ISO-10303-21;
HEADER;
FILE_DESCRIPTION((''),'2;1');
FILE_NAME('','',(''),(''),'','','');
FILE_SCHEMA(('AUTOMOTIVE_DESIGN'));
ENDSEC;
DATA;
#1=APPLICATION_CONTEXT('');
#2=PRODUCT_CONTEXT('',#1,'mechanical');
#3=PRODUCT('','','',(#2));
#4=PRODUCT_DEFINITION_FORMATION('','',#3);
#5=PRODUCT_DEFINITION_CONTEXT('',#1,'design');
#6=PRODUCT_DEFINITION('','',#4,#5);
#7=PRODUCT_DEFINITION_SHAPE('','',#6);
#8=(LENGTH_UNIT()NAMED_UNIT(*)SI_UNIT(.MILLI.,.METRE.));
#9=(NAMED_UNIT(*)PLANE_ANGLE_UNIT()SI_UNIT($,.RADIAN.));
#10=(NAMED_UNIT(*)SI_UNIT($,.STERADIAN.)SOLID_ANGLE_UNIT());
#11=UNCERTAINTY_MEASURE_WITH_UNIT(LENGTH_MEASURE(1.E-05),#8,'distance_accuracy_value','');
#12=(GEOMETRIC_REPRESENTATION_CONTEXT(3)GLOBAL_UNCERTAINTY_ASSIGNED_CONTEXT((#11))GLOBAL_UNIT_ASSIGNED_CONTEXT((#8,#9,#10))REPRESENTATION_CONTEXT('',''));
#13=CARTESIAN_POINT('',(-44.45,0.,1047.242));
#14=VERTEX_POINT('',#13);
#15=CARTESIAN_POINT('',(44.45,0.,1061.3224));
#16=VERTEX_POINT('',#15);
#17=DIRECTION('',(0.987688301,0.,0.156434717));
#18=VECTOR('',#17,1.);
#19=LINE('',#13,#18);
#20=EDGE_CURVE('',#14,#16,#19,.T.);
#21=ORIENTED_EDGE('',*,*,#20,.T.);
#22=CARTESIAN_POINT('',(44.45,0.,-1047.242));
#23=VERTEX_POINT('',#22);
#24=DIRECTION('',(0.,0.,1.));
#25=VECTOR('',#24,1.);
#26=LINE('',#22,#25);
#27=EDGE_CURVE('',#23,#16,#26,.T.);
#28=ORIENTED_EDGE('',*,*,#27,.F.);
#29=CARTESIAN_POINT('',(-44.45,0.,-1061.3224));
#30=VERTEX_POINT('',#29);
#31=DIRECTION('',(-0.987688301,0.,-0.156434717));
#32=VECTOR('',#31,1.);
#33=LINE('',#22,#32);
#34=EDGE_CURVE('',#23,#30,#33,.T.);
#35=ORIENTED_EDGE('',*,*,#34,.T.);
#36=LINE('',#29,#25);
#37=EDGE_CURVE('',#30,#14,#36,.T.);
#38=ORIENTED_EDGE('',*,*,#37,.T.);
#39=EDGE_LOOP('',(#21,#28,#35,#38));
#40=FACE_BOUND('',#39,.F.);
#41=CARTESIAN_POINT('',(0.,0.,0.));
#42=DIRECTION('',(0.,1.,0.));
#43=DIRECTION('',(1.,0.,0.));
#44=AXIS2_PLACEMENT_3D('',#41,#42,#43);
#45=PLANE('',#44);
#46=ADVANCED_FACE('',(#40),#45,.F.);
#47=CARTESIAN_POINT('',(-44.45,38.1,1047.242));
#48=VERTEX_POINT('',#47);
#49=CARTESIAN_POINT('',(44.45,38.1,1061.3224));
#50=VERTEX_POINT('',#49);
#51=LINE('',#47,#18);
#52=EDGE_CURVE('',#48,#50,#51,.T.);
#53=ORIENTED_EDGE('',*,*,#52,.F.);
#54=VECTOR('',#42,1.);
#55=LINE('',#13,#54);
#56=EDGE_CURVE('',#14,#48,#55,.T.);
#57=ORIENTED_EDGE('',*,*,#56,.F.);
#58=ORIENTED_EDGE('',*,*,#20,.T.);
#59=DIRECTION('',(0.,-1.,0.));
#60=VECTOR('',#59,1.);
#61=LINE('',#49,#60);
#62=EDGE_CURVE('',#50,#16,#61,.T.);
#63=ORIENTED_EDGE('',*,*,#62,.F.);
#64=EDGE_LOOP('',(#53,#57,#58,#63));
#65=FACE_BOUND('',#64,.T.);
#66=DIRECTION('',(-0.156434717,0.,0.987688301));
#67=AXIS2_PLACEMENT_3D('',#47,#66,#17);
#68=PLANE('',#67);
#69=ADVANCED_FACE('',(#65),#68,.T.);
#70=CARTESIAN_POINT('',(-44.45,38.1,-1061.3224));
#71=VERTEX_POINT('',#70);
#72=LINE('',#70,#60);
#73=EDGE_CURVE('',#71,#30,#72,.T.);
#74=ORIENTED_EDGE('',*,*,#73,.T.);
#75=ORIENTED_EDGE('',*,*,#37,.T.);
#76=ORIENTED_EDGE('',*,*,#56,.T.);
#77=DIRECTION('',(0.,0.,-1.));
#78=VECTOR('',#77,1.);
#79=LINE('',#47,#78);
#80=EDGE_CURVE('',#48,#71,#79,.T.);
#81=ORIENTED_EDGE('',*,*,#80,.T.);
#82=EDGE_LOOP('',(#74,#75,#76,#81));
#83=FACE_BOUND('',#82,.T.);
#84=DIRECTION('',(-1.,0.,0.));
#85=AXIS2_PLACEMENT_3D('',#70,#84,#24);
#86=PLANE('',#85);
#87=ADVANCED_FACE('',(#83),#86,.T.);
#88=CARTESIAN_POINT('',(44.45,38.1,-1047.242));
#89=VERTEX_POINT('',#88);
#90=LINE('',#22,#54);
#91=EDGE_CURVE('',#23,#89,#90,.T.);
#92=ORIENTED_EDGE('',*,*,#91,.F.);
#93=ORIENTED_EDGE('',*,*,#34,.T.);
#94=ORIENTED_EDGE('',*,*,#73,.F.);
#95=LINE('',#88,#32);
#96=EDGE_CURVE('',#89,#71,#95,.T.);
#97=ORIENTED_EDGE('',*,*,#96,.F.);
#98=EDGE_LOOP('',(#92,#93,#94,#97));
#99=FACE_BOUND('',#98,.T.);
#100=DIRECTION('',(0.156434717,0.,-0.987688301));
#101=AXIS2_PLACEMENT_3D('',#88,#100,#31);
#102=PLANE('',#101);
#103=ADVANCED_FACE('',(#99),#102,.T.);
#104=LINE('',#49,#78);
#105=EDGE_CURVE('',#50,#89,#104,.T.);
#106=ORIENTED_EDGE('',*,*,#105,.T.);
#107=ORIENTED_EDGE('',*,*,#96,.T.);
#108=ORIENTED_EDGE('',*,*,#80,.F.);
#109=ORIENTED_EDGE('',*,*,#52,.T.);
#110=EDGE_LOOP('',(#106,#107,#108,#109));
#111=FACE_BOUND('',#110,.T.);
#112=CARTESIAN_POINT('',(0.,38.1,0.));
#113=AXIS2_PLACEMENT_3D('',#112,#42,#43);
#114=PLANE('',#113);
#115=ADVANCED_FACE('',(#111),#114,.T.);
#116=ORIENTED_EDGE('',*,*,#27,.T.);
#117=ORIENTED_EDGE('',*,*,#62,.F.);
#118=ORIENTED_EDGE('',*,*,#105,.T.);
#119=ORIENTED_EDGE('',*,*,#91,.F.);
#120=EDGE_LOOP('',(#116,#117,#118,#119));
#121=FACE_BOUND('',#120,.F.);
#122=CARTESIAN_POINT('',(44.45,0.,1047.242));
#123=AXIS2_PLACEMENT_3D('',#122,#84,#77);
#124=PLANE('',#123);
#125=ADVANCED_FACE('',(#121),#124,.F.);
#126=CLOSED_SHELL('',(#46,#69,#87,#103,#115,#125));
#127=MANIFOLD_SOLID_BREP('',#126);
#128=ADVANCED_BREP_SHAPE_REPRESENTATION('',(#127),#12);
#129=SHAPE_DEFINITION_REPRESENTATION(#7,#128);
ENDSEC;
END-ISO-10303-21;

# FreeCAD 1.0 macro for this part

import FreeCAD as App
import Part
import Sketcher
Q = App.Units.Quantity

doc = App.newDocument("Part")
body = doc.addObject("PartDesign::Body", "Body")

# Sketch on XZ plane
sketch1 = body.newObject("Sketcher::SketchObject", "Sketch")
sketch1.AttachmentSupport = (doc.getObject("XZ_Plane"), [""])
sketch1.MapMode = "FlatFace"
sketch1.addGeometry([
    Part.LineSegment(App.Vector(-44, 1047, 0), App.Vector(44, 1047, 0)),
    Part.LineSegment(App.Vector(44, 1047, 0), App.Vector(44, -1047, 0)),
    Part.LineSegment(App.Vector(44, -1047, 0), App.Vector(-44, -1047, 0)),
    Part.LineSegment(App.Vector(-44, -1047, 0), App.Vector(-44, 1047, 0)),
], False)
sketch1.addConstraint([
    Sketcher.Constraint("Coincident", 0, 2, 1, 1),
    Sketcher.Constraint("Coincident", 1, 2, 2, 1),
    Sketcher.Constraint("Coincident", 2, 2, 3, 1),
    Sketcher.Constraint("Coincident", 3, 2, 0, 1),
    Sketcher.Constraint("Horizontal", 0),
    Sketcher.Constraint("Vertical", 1),
    Sketcher.Constraint("Horizontal", 2),
    Sketcher.Constraint("Vertical", 3),
    Sketcher.Constraint("Symmetric", 0, 2, 2, 2, -1, 1),
    Sketcher.Constraint("DistanceX", 0, 1, 0, 2, Q("3.5 in")),
    Sketcher.Constraint("DistanceY", 1, 2, 1, 1, Q("82.46 in")),
])
pad1 = body.newObject("PartDesign::Pad", "Pad")
pad1.Profile = sketch1
pad1.Length = Q("1.5 in")
pad1.Reversed = True

# Sketch on XZ plane
sketch2 = body.newObject("Sketcher::SketchObject", "Sketch001")
sketch2.AttachmentSupport = (doc.getObject("XZ_Plane"), [""])
sketch2.MapMode = "FlatFace"
sketch2.AttachmentOffset = App.Placement(App.Vector(0, 0, -1.5 * 25.4), App.Rotation())
sketch2.addGeometry([
    Part.LineSegment(App.Vector(44, 1047, 0), App.Vector(-44, 1047, 0)),
    Part.LineSegment(App.Vector(-44, 1047, 0), App.Vector(44, 1061, 0)),
    Part.LineSegment(App.Vector(44, 1061, 0), App.Vector(44, 1047, 0)),
], False)
sketch2.addConstraint([
    Sketcher.Constraint("Coincident", 0, 2, 1, 1),
    Sketcher.Constraint("Coincident", 1, 2, 2, 1),
    Sketcher.Constraint("Coincident", 2, 2, 0, 1),
    Sketcher.Constraint("Horizontal", 0),
    Sketcher.Constraint("Vertical", 2),
    Sketcher.Constraint("Angle", 1, Q("9 deg")),
    Sketcher.Constraint("DistanceX", 0, 2, 0, 1, Q("3.5 in")),
    Sketcher.Constraint("DistanceX", 0, 2, -1, 1, Q("1.75 in")),
    Sketcher.Constraint("DistanceY", -1, 1, 0, 2, Q("41.23 in")),
])
pad2 = body.newObject("PartDesign::Pad", "Pad001")
pad2.Profile = sketch2
pad2.Length = Q("1.5 in")

# Sketch on XZ plane
sketch3 = body.newObject("Sketcher::SketchObject", "Sketch002")
sketch3.AttachmentSupport = (doc.getObject("XZ_Plane"), [""])
sketch3.MapMode = "FlatFace"
sketch3.AttachmentOffset = App.Placement(App.Vector(0, 0, -1.5 * 25.4), App.Rotation())
sketch3.addGeometry([
    Part.LineSegment(App.Vector(-44, -1047, 0), App.Vector(44, -1047, 0)),
    Part.LineSegment(App.Vector(44, -1047, 0), App.Vector(-44, -1061, 0)),
    Part.LineSegment(App.Vector(-44, -1061, 0), App.Vector(-44, -1047, 0)),
], False)
sketch3.addConstraint([
    Sketcher.Constraint("Coincident", 0, 2, 1, 1),
    Sketcher.Constraint("Coincident", 1, 2, 2, 1),
    Sketcher.Constraint("Coincident", 2, 2, 0, 1),
    Sketcher.Constraint("Horizontal", 0),
    Sketcher.Constraint("Vertical", 2),
    Sketcher.Constraint("DistanceX", 0, 1, 0, 2, Q("3.5 in")),
    Sketcher.Constraint("Angle", 1, Q("-171 deg")),
    Sketcher.Constraint("DistanceX", -1, 1, 0, 2, Q("1.75 in")),
    Sketcher.Constraint("DistanceY", 0, 2, -1, 1, Q("41.23 in")),
])
pad3 = body.newObject("PartDesign::Pad", "Pad002")
pad3.Profile = sketch3
pad3.Length = Q("1.5 in")

doc.recompute()
